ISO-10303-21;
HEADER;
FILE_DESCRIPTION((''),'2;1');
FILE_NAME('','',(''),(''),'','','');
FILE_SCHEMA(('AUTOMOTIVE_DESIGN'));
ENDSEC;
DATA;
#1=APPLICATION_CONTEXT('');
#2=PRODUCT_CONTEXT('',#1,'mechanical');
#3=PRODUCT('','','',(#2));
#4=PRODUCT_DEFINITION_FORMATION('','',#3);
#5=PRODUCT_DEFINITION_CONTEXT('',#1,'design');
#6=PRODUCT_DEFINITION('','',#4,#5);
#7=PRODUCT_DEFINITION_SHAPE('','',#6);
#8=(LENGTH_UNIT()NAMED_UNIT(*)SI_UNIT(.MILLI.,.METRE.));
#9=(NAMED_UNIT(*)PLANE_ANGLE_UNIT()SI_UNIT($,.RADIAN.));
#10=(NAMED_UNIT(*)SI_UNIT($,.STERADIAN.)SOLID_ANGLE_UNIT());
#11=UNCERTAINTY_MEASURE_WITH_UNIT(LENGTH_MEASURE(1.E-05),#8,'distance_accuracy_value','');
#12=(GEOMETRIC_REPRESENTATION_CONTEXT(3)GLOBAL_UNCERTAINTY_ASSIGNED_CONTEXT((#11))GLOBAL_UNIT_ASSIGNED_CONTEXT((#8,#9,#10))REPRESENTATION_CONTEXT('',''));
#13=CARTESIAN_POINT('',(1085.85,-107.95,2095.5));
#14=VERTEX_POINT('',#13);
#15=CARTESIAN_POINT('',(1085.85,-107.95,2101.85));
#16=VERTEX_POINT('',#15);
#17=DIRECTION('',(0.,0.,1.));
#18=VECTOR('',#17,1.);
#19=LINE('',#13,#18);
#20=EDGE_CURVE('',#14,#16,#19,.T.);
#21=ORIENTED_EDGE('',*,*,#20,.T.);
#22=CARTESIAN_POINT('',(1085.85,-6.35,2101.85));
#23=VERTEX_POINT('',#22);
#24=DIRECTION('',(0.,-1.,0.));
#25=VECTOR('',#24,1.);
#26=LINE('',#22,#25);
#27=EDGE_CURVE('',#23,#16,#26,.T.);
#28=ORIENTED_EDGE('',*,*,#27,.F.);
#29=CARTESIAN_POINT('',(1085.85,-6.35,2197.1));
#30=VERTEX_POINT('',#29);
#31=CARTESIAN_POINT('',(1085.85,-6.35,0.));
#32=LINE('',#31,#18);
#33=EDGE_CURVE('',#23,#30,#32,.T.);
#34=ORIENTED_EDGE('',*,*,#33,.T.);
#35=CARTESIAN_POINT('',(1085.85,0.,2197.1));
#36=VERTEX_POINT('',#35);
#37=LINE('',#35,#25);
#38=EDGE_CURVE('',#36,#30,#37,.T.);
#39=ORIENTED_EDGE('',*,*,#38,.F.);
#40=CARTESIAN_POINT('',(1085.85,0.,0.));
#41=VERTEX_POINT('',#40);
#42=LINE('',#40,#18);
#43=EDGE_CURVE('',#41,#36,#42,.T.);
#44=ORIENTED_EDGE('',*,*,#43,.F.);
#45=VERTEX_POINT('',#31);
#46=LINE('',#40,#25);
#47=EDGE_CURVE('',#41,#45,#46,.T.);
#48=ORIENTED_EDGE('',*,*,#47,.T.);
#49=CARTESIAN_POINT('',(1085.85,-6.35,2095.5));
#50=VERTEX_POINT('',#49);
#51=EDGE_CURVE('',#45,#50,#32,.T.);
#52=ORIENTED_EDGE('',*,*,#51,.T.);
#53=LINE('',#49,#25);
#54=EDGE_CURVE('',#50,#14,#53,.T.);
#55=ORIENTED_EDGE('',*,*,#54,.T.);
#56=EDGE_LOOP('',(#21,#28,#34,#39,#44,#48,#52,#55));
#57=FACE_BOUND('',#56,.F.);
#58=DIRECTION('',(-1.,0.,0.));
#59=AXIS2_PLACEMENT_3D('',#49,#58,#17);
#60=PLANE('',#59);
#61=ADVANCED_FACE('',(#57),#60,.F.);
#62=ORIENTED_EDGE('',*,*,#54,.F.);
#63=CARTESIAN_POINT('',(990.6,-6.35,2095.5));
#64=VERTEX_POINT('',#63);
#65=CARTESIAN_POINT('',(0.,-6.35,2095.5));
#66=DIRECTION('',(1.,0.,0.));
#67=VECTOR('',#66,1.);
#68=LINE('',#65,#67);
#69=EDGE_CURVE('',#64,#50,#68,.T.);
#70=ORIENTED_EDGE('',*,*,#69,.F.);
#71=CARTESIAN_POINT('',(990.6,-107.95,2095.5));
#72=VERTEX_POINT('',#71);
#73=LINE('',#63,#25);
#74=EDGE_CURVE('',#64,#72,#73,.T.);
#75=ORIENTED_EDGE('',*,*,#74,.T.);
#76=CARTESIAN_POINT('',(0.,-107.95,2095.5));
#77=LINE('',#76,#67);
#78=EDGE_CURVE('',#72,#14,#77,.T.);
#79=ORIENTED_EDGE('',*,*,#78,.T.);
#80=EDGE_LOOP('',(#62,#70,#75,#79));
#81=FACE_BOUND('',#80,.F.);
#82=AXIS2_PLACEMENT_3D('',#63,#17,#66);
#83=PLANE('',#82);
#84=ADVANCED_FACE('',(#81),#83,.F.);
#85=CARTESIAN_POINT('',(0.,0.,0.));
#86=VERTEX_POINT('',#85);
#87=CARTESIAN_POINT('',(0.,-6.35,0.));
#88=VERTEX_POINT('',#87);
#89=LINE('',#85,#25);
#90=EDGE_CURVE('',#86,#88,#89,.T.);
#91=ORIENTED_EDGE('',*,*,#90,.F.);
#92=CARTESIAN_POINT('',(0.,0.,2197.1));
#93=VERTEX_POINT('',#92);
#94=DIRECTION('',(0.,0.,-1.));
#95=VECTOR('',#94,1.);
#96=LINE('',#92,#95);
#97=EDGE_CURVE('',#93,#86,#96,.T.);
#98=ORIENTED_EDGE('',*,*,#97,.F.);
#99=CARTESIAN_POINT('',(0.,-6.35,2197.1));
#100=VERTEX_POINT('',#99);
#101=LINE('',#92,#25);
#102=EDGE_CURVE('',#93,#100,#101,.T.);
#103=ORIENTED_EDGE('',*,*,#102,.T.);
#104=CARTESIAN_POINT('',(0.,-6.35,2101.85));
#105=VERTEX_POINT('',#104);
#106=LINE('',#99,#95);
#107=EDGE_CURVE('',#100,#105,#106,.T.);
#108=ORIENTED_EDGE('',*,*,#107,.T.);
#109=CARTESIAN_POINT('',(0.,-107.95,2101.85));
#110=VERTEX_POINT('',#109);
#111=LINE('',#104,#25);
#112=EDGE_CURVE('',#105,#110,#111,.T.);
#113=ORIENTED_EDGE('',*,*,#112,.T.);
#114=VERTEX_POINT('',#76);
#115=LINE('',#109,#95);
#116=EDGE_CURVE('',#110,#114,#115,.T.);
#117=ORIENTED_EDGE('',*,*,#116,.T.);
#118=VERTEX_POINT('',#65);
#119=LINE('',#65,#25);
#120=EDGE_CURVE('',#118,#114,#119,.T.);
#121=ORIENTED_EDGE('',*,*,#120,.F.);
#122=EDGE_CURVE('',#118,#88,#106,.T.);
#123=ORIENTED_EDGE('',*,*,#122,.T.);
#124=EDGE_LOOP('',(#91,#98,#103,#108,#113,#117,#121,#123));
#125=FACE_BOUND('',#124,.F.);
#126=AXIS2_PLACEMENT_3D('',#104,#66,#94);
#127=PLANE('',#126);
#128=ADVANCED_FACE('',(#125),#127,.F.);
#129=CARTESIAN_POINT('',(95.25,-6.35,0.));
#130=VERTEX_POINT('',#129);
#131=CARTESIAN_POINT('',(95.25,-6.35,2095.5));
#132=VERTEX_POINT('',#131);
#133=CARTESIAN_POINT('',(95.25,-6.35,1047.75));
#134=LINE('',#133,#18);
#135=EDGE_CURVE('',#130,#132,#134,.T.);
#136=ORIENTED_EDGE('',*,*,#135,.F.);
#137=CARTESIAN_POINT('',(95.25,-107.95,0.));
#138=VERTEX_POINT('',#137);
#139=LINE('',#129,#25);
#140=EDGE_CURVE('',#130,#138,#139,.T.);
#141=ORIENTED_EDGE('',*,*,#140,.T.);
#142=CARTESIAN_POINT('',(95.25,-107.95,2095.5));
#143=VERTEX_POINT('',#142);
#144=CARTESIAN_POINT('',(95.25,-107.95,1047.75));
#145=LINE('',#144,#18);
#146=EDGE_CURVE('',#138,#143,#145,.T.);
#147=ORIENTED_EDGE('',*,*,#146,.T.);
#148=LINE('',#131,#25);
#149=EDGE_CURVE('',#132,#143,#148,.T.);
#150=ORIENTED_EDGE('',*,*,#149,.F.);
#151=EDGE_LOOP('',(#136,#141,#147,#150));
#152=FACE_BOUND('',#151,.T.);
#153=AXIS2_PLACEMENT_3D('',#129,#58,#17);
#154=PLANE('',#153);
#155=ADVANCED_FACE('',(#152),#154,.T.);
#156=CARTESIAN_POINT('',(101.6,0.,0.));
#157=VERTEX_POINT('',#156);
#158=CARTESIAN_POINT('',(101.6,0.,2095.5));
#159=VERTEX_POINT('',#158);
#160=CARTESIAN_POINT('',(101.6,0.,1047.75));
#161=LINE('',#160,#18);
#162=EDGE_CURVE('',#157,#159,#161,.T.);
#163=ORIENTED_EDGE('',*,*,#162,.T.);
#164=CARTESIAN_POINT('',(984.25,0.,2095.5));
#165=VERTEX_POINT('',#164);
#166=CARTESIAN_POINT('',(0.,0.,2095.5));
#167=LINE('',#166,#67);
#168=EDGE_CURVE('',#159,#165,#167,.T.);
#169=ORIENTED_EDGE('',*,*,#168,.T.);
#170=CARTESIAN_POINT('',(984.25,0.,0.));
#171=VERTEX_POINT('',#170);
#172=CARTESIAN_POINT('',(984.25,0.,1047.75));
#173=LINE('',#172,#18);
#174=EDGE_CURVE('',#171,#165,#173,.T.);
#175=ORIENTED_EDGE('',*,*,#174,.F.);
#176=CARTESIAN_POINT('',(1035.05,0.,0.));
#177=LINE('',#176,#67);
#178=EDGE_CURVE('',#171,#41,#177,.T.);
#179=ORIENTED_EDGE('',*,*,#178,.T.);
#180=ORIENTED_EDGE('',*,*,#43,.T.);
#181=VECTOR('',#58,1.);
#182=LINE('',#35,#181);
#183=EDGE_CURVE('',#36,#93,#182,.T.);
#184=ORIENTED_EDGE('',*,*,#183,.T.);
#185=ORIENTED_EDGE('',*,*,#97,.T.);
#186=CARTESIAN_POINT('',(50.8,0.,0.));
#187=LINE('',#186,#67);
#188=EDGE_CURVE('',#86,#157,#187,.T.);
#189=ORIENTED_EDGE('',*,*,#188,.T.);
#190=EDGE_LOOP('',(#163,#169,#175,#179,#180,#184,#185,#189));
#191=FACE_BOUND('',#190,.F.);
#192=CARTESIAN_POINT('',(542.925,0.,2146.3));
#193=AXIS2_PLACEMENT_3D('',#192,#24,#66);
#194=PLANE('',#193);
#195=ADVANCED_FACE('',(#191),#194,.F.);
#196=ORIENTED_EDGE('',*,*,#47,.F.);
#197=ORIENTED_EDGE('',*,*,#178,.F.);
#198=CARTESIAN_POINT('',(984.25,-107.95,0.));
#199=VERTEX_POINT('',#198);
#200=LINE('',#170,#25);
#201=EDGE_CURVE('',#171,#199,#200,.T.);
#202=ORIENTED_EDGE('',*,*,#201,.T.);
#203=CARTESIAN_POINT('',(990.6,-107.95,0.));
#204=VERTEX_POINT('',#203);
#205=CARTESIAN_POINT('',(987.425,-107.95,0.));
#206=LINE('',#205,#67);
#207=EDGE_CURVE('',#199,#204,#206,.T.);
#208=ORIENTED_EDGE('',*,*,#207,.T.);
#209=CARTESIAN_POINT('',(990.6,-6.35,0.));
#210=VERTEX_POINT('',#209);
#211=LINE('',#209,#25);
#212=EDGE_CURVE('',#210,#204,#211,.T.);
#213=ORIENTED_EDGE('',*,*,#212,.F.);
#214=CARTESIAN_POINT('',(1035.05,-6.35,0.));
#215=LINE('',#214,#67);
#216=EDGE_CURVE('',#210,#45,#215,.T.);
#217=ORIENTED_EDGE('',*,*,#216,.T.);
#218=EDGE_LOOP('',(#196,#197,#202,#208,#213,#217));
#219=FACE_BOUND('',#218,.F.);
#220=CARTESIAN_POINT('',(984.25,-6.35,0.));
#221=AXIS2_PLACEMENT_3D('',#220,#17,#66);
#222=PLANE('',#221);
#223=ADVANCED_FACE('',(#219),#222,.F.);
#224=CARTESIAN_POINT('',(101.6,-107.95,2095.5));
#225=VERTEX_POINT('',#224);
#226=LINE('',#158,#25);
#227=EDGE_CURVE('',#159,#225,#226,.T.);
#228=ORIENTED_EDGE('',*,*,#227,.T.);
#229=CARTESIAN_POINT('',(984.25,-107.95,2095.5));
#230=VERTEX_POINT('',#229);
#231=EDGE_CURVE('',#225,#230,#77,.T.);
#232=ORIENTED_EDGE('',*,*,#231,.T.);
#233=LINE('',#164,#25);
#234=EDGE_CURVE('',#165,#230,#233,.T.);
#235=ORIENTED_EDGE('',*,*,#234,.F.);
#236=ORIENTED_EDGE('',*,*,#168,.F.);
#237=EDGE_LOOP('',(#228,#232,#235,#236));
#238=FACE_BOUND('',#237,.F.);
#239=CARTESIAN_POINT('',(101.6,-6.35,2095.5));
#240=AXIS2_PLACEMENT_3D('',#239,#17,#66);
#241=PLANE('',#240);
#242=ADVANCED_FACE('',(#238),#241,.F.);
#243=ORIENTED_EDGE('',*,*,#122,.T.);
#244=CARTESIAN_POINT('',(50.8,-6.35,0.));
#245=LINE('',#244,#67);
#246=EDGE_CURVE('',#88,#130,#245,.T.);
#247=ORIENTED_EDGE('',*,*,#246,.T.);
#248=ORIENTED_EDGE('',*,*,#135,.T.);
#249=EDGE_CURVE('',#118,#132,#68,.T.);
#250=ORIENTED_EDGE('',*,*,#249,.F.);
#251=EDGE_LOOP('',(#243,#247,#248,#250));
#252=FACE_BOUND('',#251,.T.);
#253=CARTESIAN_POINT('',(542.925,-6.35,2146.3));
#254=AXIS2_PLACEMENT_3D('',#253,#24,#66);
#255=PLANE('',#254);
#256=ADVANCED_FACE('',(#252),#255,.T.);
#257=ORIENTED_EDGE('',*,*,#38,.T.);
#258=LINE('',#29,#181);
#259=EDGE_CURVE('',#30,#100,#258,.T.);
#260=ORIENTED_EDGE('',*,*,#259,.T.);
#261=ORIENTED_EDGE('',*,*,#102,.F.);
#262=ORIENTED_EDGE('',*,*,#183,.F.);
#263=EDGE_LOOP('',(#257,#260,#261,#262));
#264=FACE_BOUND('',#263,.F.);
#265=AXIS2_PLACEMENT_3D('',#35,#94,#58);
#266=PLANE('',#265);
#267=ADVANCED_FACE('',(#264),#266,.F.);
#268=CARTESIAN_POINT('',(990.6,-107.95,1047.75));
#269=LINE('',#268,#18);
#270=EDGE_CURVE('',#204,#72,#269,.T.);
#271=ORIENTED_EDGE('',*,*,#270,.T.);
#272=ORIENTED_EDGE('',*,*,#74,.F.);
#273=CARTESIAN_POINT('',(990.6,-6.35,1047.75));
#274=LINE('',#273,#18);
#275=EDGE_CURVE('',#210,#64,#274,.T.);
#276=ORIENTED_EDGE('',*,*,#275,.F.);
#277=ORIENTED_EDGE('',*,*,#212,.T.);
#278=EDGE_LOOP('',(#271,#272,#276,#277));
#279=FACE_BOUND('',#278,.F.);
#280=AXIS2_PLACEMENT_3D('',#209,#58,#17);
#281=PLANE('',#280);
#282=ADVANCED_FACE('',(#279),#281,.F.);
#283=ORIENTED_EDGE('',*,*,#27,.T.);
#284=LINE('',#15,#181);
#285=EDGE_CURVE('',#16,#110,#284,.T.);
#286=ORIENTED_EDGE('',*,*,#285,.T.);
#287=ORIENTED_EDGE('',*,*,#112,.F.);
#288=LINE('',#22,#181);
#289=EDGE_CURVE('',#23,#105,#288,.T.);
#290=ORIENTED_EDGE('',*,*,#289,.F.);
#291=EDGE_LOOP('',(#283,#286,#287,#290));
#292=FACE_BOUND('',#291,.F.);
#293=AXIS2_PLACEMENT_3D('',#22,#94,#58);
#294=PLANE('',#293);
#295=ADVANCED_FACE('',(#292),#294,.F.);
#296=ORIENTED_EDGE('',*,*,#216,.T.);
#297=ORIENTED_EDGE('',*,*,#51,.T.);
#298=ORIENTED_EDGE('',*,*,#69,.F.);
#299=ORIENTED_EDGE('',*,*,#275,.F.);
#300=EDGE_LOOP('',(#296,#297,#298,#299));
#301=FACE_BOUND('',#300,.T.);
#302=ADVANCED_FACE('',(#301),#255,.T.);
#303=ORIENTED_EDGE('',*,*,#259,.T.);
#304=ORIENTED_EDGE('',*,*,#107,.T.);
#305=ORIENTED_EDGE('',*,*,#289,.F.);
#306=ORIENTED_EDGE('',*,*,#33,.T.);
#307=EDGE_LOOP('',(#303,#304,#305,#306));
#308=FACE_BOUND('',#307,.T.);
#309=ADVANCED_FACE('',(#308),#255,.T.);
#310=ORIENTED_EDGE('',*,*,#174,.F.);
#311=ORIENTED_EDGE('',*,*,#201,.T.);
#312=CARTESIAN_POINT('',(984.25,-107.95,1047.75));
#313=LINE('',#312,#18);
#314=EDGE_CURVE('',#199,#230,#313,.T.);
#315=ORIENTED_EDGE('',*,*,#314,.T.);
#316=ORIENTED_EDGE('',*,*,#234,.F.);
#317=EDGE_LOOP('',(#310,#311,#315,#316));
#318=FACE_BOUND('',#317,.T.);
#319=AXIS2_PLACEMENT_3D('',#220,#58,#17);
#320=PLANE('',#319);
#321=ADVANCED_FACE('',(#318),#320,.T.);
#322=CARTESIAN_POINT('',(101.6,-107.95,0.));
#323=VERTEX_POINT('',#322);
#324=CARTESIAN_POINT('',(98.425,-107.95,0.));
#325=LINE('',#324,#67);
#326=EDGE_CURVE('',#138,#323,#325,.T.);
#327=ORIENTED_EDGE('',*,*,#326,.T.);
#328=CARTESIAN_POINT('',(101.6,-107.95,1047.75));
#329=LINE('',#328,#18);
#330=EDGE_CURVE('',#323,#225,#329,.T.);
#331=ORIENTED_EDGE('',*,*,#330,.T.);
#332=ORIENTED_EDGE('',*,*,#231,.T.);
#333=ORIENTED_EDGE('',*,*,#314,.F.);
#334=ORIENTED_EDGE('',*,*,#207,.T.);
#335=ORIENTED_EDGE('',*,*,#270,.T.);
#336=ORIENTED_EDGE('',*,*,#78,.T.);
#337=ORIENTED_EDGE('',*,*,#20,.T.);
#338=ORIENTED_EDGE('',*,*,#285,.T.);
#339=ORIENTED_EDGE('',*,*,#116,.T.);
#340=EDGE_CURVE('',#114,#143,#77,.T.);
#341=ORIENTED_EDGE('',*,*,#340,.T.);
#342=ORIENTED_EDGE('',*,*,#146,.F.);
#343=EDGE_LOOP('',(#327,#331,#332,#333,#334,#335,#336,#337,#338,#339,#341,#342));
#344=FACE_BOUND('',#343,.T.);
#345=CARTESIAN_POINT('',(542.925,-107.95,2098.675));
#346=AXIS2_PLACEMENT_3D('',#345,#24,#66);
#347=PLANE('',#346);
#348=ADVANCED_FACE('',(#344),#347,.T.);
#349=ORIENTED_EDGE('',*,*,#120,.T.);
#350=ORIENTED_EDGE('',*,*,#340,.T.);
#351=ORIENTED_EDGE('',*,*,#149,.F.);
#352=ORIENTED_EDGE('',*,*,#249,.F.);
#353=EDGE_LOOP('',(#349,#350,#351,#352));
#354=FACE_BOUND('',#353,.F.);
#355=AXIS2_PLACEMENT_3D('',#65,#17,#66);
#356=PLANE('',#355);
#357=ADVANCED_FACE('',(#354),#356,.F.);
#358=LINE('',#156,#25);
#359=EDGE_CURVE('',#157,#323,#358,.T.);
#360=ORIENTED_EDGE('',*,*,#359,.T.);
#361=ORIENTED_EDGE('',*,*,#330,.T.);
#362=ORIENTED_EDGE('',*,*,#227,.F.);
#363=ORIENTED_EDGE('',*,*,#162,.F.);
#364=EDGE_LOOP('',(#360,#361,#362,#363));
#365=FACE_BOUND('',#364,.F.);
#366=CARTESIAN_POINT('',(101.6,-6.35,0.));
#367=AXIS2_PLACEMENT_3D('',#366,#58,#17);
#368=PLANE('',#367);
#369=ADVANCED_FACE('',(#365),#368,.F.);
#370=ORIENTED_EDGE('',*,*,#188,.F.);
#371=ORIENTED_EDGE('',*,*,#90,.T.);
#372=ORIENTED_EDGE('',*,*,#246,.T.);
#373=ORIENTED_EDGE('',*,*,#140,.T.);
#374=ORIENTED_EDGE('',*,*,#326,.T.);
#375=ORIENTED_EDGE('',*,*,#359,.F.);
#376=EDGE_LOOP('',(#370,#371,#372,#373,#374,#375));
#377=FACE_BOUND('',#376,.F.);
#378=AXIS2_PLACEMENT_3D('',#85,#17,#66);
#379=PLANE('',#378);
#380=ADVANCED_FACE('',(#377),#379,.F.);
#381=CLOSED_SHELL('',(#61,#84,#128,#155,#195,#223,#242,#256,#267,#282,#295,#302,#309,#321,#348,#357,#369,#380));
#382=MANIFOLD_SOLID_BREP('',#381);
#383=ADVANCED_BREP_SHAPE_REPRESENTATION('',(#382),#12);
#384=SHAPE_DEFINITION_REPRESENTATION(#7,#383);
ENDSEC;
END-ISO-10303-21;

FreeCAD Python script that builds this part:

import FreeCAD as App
import Part
import Sketcher

V = App.Vector
Q = App.Units.Quantity

doc = App.newDocument("Part")
body = doc.addObject("PartDesign::Body", "Body")

sketch1 = body.newObject("Sketcher::SketchObject", "Sketch")
sketch1.AttachmentSupport = (doc.getObject("XZ_Plane"), [""])
sketch1.MapMode = "FlatFace"
sketch1.addGeometry(Part.LineSegment(V(0, 2197, 0), V(0, 0, 0)), False)
sketch1.addGeometry(Part.LineSegment(V(0, 0, 0), V(102, 0, 0)), False)
sketch1.addGeometry(Part.LineSegment(V(102, 0, 0), V(102, 2096, 0)), False)
sketch1.addGeometry(Part.LineSegment(V(102, 2096, 0), V(984, 2096, 0)), False)
sketch1.addGeometry(Part.LineSegment(V(984, 2096, 0), V(984, 0, 0)), False)
sketch1.addGeometry(Part.LineSegment(V(984, 0, 0), V(1086, 0, 0)), False)
sketch1.addGeometry(Part.LineSegment(V(1086, 0, 0), V(1086, 2197, 0)), False)
sketch1.addGeometry(Part.LineSegment(V(1086, 2197, 0), V(0, 2197, 0)), False)
sketch1.addConstraint(Sketcher.Constraint("Coincident", 0, 2, 1, 1))
sketch1.addConstraint(Sketcher.Constraint("Coincident", 1, 2, 2, 1))
sketch1.addConstraint(Sketcher.Constraint("Coincident", 2, 2, 3, 1))
sketch1.addConstraint(Sketcher.Constraint("Coincident", 3, 2, 4, 1))
sketch1.addConstraint(Sketcher.Constraint("Coincident", 4, 2, 5, 1))
sketch1.addConstraint(Sketcher.Constraint("Coincident", 5, 2, 6, 1))
sketch1.addConstraint(Sketcher.Constraint("Coincident", 6, 2, 7, 1))
sketch1.addConstraint(Sketcher.Constraint("Coincident", 7, 2, 0, 1))
sketch1.addConstraint(Sketcher.Constraint("Vertical", 0))
sketch1.addConstraint(Sketcher.Constraint("Horizontal", 1))
sketch1.addConstraint(Sketcher.Constraint("Vertical", 2))
sketch1.addConstraint(Sketcher.Constraint("Horizontal", 3))
sketch1.addConstraint(Sketcher.Constraint("Vertical", 4))
sketch1.addConstraint(Sketcher.Constraint("Horizontal", 5))
sketch1.addConstraint(Sketcher.Constraint("Vertical", 6))
sketch1.addConstraint(Sketcher.Constraint("Horizontal", 7))
sketch1.addConstraint(Sketcher.Constraint("Coincident", 0, 2, -1, 1))
sketch1.addConstraint(Sketcher.Constraint("PointOnObject", 4, 2, -1))
sketch1.addConstraint(Sketcher.Constraint("Equal", 1, 5))
sketch1.addConstraint(Sketcher.Constraint("DistanceX", 1, 1, 1, 2, Q("4 in")))
sketch1.addConstraint(Sketcher.Constraint("DistanceY", 0, 2, 0, 1, Q("86.5 in")))
sketch1.addConstraint(Sketcher.Constraint("DistanceY", 2, 1, 2, 2, Q("82.5 in")))
sketch1.addConstraint(Sketcher.Constraint("DistanceX", 3, 1, 3, 2, Q("34.75 in")))
pad1 = body.newObject("PartDesign::Pad", "Pad")
pad1.Profile = sketch1
pad1.Length = Q("0.25 in")

sketch2 = body.newObject("Sketcher::SketchObject", "Sketch001")
sketch2.AttachmentSupport = (doc.getObject("XZ_Plane"), [""])
sketch2.MapMode = "FlatFace"
sketch2.AttachmentOffset = App.Placement(V(0, 0, 0.25 * 25.4), App.Rotation())
sketch2.addGeometry(Part.LineSegment(V(0, 2102, 0), V(0, 2096, 0)), False)
sketch2.addGeometry(Part.LineSegment(V(0, 2096, 0), V(95, 2096, 0)), False)
sketch2.addGeometry(Part.LineSegment(V(95, 2096, 0), V(95, 0, 0)), False)
sketch2.addGeometry(Part.LineSegment(V(95, 0, 0), V(102, 0, 0)), False)
sketch2.addGeometry(Part.LineSegment(V(102, 0, 0), V(102, 2096, 0)), False)
sketch2.addGeometry(Part.LineSegment(V(102, 2096, 0), V(984, 2096, 0)), False)
sketch2.addGeometry(Part.LineSegment(V(984, 2096, 0), V(984, 0, 0)), False)
sketch2.addGeometry(Part.LineSegment(V(984, 0, 0), V(991, 0, 0)), False)
sketch2.addGeometry(Part.LineSegment(V(991, 0, 0), V(991, 2096, 0)), False)
sketch2.addGeometry(Part.LineSegment(V(991, 2096, 0), V(1086, 2096, 0)), False)
sketch2.addGeometry(Part.LineSegment(V(1086, 2096, 0), V(1086, 2102, 0)), False)
sketch2.addGeometry(Part.LineSegment(V(1086, 2102, 0), V(0, 2102, 0)), False)
sketch2.addConstraint(Sketcher.Constraint("Coincident", 0, 2, 1, 1))
sketch2.addConstraint(Sketcher.Constraint("Coincident", 1, 2, 2, 1))
sketch2.addConstraint(Sketcher.Constraint("Coincident", 2, 2, 3, 1))
sketch2.addConstraint(Sketcher.Constraint("Coincident", 3, 2, 4, 1))
sketch2.addConstraint(Sketcher.Constraint("Coincident", 4, 2, 5, 1))
sketch2.addConstraint(Sketcher.Constraint("Coincident", 5, 2, 6, 1))
sketch2.addConstraint(Sketcher.Constraint("Coincident", 6, 2, 7, 1))
sketch2.addConstraint(Sketcher.Constraint("Coincident", 7, 2, 8, 1))
sketch2.addConstraint(Sketcher.Constraint("Coincident", 8, 2, 9, 1))
sketch2.addConstraint(Sketcher.Constraint("Coincident", 9, 2, 10, 1))
sketch2.addConstraint(Sketcher.Constraint("Coincident", 10, 2, 11, 1))
sketch2.addConstraint(Sketcher.Constraint("Coincident", 11, 2, 0, 1))
sketch2.addConstraint(Sketcher.Constraint("Vertical", 0))
sketch2.addConstraint(Sketcher.Constraint("Horizontal", 1))
sketch2.addConstraint(Sketcher.Constraint("Vertical", 2))
sketch2.addConstraint(Sketcher.Constraint("Horizontal", 3))
sketch2.addConstraint(Sketcher.Constraint("Vertical", 4))
sketch2.addConstraint(Sketcher.Constraint("Horizontal", 5))
sketch2.addConstraint(Sketcher.Constraint("Vertical", 6))
sketch2.addConstraint(Sketcher.Constraint("Horizontal", 7))
sketch2.addConstraint(Sketcher.Constraint("Vertical", 8))
sketch2.addConstraint(Sketcher.Constraint("Horizontal", 9))
sketch2.addConstraint(Sketcher.Constraint("Vertical", 10))
sketch2.addConstraint(Sketcher.Constraint("Horizontal", 11))
sketch2.addConstraint(Sketcher.Constraint("PointOnObject", 0, 2, -2))
sketch2.addConstraint(Sketcher.Constraint("PointOnObject", 2, 2, -1))
sketch2.addConstraint(Sketcher.Constraint("PointOnObject", 6, 2, -1))
sketch2.addConstraint(Sketcher.Constraint("Horizontal", 1, 2, 4, 2))
sketch2.addConstraint(Sketcher.Constraint("Horizontal", 5, 2, 8, 2))
sketch2.addConstraint(Sketcher.Constraint("Equal", 3, 7))
sketch2.addConstraint(Sketcher.Constraint("Equal", 1, 9))
sketch2.addConstraint(Sketcher.Constraint("Equal", 7, 0))
sketch2.addConstraint(Sketcher.Constraint("DistanceY", 2, 2, 2, 1, Q("82.5 in")))
sketch2.addConstraint(Sketcher.Constraint("DistanceX", -1, 1, 3, 2, Q("4 in")))
sketch2.addConstraint(Sketcher.Constraint("DistanceX", -1, 1, 7, 2, Q("39 in")))
sketch2.addConstraint(Sketcher.Constraint("DistanceX", 1, 1, 1, 2, Q("3.75 in")))
pad2 = body.newObject("PartDesign::Pad", "Pad001")
pad2.Profile = sketch2
pad2.Length = Q("4 in")

doc.recompute()
